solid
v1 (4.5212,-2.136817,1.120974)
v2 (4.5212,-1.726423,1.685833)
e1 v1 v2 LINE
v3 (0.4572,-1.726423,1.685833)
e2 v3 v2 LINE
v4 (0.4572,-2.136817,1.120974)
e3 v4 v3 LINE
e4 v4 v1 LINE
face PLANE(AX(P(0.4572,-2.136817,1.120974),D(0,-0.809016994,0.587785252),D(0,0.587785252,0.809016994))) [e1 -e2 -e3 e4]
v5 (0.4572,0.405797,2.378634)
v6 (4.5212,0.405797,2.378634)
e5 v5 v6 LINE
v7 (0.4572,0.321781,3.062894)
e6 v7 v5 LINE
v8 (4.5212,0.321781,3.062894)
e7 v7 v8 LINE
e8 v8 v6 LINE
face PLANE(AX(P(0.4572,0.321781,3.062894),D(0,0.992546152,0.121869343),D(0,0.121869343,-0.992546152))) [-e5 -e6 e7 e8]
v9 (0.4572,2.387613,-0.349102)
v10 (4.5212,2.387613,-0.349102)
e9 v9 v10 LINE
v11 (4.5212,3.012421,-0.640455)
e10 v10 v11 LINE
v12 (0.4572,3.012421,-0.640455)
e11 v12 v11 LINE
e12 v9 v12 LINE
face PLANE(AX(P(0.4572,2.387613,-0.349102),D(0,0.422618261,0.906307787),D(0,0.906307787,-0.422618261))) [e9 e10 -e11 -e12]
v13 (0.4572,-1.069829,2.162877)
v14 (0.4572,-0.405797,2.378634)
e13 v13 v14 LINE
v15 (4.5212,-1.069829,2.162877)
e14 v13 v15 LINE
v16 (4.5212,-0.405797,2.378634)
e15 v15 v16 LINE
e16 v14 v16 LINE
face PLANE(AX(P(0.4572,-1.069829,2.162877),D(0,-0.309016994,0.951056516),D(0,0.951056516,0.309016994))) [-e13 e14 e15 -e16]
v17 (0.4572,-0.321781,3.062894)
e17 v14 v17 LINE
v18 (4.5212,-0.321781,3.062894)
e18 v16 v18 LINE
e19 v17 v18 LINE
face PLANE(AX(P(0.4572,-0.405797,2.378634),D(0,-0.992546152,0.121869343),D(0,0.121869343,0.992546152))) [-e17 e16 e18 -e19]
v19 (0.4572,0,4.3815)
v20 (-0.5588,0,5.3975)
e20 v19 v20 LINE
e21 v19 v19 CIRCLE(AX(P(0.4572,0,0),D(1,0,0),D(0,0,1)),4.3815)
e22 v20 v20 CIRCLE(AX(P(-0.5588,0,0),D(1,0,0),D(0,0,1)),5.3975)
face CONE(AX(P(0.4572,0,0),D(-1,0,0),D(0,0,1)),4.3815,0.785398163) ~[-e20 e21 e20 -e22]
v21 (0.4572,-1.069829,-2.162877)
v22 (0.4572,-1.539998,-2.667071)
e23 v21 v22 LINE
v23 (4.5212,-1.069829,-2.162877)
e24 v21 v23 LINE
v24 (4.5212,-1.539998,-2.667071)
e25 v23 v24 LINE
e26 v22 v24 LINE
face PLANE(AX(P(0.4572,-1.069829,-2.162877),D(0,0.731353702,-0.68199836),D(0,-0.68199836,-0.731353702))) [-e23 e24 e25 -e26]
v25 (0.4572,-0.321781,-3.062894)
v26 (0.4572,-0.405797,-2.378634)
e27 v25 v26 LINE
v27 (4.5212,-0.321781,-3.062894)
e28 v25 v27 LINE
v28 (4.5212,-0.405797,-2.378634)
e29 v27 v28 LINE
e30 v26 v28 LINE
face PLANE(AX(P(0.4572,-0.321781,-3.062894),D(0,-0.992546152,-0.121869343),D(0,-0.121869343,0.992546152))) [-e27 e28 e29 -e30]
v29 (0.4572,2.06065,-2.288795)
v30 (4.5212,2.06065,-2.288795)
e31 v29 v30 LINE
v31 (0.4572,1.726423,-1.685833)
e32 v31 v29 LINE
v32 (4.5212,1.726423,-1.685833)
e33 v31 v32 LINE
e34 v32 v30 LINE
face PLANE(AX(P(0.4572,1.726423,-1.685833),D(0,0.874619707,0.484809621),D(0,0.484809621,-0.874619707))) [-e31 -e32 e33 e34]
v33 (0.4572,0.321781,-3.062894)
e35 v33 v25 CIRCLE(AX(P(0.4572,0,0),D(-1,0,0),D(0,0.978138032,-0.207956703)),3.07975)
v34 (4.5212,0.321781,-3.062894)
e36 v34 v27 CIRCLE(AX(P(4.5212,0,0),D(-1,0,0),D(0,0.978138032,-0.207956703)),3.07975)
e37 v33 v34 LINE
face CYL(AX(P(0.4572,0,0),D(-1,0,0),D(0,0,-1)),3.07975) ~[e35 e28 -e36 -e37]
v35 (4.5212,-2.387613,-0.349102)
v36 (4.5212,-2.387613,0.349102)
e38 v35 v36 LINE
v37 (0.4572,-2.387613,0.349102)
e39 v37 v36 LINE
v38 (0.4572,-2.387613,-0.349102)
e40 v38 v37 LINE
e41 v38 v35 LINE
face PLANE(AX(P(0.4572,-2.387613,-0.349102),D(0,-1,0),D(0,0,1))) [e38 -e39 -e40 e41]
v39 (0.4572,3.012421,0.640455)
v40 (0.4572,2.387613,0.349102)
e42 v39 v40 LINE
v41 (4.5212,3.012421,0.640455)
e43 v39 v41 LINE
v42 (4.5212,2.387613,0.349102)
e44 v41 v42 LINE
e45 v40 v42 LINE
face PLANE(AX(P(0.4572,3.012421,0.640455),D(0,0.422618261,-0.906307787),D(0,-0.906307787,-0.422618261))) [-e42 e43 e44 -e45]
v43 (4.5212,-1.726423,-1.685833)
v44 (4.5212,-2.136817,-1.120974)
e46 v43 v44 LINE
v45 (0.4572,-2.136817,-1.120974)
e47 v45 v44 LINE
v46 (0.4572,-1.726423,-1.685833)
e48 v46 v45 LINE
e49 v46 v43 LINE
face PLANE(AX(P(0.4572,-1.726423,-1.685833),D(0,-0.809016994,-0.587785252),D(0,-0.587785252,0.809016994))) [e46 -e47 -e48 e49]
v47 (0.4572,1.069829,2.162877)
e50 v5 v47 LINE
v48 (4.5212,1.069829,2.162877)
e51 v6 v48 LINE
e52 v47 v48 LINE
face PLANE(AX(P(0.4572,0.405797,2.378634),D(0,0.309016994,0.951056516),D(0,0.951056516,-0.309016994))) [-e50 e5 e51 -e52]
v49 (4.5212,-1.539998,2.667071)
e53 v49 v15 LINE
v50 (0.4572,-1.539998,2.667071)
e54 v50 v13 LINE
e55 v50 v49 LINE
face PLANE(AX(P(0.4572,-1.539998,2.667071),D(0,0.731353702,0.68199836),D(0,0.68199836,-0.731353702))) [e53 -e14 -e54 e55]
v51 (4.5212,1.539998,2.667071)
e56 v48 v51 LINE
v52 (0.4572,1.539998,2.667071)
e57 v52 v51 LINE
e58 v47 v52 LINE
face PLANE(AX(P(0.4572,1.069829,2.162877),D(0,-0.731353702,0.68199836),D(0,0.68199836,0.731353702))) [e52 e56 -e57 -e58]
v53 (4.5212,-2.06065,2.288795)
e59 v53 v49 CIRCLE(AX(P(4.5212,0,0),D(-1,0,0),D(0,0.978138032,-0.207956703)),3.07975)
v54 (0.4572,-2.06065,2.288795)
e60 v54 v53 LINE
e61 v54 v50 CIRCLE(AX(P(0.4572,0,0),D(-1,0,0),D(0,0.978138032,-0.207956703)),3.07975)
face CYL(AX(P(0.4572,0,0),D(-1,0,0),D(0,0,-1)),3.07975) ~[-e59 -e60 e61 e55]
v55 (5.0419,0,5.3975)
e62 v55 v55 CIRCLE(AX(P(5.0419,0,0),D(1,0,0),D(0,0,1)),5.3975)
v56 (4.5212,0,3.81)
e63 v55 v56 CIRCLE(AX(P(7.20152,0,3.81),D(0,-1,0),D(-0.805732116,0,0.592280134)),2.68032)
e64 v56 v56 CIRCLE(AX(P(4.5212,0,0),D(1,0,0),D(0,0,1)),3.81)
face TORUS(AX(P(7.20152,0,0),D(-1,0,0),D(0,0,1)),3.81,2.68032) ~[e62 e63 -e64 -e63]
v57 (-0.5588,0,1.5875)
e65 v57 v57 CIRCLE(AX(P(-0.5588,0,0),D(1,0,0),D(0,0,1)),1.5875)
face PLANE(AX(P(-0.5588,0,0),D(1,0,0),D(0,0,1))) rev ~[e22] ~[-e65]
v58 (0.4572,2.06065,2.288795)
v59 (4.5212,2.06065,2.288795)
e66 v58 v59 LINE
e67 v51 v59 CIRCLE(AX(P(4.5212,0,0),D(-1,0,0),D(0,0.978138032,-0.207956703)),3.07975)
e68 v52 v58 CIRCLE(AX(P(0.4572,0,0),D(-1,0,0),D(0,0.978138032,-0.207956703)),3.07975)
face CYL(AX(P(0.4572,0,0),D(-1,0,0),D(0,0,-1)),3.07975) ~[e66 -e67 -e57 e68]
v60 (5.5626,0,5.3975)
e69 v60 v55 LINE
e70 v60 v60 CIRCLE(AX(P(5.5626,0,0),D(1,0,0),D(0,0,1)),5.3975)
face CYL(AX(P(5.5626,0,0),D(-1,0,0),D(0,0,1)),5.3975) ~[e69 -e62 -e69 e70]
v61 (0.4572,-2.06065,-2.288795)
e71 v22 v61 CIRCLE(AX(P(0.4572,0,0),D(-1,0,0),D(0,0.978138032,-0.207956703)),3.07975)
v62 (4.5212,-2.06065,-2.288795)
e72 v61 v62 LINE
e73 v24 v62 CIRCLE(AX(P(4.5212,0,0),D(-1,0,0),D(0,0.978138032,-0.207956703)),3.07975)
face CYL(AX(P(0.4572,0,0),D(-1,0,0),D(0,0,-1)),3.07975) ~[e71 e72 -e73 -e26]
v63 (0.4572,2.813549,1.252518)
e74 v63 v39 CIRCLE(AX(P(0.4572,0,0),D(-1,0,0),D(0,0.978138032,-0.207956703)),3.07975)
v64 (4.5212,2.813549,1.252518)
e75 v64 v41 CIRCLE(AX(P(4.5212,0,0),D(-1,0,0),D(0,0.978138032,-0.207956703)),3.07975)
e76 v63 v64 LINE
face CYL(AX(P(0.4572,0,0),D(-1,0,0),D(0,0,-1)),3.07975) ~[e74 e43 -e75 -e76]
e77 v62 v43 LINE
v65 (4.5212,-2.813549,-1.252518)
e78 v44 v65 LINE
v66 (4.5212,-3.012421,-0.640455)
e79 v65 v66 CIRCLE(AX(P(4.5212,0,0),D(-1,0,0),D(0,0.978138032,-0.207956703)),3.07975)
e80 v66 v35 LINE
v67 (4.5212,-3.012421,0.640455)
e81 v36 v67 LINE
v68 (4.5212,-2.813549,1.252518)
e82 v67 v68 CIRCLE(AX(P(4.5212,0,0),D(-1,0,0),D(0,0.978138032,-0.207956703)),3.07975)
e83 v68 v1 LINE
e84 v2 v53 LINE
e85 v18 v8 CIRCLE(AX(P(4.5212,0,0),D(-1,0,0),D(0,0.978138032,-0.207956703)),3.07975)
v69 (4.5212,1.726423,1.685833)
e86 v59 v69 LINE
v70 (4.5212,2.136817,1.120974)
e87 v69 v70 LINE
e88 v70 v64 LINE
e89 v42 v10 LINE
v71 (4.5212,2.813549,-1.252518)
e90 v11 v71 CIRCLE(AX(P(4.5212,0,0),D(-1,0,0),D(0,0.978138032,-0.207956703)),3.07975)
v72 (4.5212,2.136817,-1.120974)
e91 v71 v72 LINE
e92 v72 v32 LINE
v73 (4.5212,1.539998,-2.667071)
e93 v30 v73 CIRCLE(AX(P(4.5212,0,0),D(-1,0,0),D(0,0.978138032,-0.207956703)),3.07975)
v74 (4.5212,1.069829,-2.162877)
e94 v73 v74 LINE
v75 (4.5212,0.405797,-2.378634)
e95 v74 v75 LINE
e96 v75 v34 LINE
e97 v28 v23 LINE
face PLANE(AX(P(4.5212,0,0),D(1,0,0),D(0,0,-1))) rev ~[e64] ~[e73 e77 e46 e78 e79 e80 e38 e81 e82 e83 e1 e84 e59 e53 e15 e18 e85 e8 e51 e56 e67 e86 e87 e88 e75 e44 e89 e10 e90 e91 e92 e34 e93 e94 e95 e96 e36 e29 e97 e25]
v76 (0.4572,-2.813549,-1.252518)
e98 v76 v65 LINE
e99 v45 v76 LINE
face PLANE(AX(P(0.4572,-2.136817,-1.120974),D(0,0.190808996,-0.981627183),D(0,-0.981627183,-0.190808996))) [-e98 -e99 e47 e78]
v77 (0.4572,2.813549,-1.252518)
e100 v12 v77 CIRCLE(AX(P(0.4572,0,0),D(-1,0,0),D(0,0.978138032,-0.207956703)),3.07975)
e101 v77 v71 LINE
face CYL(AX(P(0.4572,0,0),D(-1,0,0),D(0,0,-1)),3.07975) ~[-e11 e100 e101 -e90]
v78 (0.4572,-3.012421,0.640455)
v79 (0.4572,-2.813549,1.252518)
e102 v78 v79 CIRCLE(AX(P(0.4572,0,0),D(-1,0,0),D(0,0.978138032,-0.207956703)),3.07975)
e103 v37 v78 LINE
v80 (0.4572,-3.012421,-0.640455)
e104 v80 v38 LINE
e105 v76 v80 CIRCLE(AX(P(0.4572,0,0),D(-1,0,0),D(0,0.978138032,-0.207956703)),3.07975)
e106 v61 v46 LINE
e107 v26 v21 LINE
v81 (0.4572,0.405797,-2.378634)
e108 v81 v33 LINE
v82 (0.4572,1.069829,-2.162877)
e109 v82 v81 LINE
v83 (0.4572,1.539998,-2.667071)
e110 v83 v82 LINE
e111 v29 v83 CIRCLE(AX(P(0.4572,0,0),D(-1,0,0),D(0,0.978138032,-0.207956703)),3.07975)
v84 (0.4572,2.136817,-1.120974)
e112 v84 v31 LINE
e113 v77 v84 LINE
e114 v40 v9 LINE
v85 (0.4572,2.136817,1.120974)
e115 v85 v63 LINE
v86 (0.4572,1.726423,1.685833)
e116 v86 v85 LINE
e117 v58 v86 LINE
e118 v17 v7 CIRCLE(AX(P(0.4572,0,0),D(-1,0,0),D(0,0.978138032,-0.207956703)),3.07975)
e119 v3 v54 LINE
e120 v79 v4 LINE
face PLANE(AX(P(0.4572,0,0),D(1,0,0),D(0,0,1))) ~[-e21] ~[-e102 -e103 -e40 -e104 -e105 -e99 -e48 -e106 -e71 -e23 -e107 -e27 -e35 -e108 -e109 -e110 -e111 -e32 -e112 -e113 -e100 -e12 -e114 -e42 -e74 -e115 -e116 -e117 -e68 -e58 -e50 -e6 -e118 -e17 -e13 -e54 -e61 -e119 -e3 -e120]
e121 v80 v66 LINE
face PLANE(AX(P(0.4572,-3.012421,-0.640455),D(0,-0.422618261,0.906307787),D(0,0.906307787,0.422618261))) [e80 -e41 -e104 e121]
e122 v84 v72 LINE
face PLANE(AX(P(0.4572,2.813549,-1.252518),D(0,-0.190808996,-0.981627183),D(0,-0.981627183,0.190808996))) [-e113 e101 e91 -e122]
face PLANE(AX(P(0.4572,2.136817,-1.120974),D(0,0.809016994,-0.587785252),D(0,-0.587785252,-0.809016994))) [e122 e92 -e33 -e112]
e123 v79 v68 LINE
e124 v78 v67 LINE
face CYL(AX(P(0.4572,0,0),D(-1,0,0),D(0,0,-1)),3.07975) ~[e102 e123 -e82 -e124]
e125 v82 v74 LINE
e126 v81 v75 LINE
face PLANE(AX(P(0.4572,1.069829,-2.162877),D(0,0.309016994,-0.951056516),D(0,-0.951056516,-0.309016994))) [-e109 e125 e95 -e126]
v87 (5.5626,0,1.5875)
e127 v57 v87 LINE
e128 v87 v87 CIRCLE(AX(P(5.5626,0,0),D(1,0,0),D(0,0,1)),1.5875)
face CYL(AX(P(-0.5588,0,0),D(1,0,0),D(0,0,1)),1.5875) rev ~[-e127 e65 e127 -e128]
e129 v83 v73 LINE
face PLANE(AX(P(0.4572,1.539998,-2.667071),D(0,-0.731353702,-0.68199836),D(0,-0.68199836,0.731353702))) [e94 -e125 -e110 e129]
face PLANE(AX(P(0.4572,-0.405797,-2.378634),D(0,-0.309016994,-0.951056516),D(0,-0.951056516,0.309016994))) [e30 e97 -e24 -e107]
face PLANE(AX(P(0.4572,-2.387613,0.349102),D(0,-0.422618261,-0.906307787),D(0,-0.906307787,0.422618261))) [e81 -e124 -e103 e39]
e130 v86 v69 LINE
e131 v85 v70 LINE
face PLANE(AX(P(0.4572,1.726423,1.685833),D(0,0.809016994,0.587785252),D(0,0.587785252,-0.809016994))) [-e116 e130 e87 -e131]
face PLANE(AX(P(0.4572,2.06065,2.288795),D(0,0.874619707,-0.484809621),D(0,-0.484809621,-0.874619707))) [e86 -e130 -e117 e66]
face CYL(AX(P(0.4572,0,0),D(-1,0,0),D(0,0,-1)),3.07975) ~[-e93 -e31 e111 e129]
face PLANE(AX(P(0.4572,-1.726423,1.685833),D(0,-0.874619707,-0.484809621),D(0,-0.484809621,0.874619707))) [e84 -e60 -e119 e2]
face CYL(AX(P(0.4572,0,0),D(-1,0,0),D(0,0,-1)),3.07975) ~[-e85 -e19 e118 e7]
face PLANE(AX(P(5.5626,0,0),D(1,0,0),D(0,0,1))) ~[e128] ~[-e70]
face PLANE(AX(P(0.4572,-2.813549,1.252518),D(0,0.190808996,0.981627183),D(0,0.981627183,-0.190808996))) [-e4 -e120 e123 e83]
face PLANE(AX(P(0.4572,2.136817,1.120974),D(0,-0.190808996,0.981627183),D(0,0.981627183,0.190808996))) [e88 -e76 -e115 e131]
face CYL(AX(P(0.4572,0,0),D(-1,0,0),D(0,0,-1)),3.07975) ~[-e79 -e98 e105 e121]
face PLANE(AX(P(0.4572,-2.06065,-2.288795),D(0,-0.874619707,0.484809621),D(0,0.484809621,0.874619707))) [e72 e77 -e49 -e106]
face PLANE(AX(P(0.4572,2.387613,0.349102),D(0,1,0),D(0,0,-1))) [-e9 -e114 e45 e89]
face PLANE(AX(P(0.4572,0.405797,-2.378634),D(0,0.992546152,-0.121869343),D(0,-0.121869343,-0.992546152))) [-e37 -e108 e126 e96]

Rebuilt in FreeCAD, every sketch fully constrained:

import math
import FreeCAD as App
import Part
import Sketcher
Q = App.Units.Quantity

doc = App.newDocument("Part")
body = doc.addObject("PartDesign::Body", "Body")

# Sketch on XY plane
sketch1 = doc.addObject("Sketcher::SketchObject", "Sketch")
body.addObject(sketch1)
sketch1.AttachmentSupport = (doc.XY_Plane, [""])
sketch1.MapMode = "FlatFace"
sketch1.addGeometry([
    Part.LineSegment(App.Vector(-0.5588, 5.3975, 0), App.Vector(-0.5588, 1.5875, 0)),  # 0
    Part.LineSegment(App.Vector(-0.5588, 1.5875, 0), App.Vector(5.5626, 1.5875, 0)),  # 1
    Part.LineSegment(App.Vector(5.5626, 1.5875, 0), App.Vector(5.5626, 5.3975, 0)),  # 2
    Part.LineSegment(App.Vector(5.5626, 5.3975, 0), App.Vector(5.0419, 5.3975, 0)),  # 3
    Part.ArcOfCircle(Part.Circle(App.Vector(7.20152, 3.81, 0), App.Vector(0, 0, 1), 2.68032), math.radians(143.681019), math.radians(180)),  # 4
    Part.LineSegment(App.Vector(4.5212, 3.81, 0), App.Vector(4.5212, 3.2385, 0)),  # 5
    Part.LineSegment(App.Vector(4.5212, 3.2385, 0), App.Vector(0.4572, 3.2385, 0)),  # 6
    Part.LineSegment(App.Vector(0.4572, 3.2385, 0), App.Vector(0.4572, 4.3815, 0)),  # 7
    Part.LineSegment(App.Vector(0.4572, 4.3815, 0), App.Vector(-0.5588, 5.3975, 0)),  # 8
], False)
sketch1.addConstraint([
    Sketcher.Constraint("Coincident", 0, 2, 1, 1),
    Sketcher.Constraint("Coincident", 1, 2, 2, 1),
    Sketcher.Constraint("Coincident", 2, 2, 3, 1),
    Sketcher.Constraint("Coincident", 3, 2, 4, 1),
    Sketcher.Constraint("Tangent", 4, 2, 5, 1),
    Sketcher.Constraint("Coincident", 5, 2, 6, 1),
    Sketcher.Constraint("Coincident", 6, 2, 7, 1),
    Sketcher.Constraint("Coincident", 7, 2, 8, 1),
    Sketcher.Constraint("Coincident", 8, 2, 0, 1),
    Sketcher.Constraint("Vertical", 0),
    Sketcher.Constraint("Horizontal", 1),
    Sketcher.Constraint("Vertical", 2),
    Sketcher.Constraint("Horizontal", 3),
    Sketcher.Constraint("Vertical", 5),
    Sketcher.Constraint("Horizontal", 6),
    Sketcher.Constraint("Vertical", 7),
    Sketcher.Constraint("Horizontal", 3, 2, 8, 2),
    Sketcher.Constraint("Angle", 8, Q("135 deg")),
    Sketcher.Constraint("DistanceX", 6, 2, 6, 1, Q("0.16 in")),
    Sketcher.Constraint("DistanceY", 0, 2, 0, 1, Q("0.15 in")),
    Sketcher.Constraint("DistanceX", 0, 2, 4, 2, Q("0.2 in")),
    Sketcher.Constraint("DistanceX", 1, 1, 1, 2, Q("0.241 in")),
    Sketcher.Constraint("DistanceY", 7, 1, 7, 2, Q("0.045 in")),
    Sketcher.Constraint("DistanceY", -1, 1, 4, 3, Q("0.15 in")),
    Sketcher.Constraint("DistanceX", 3, 2, 3, 1, Q("0.0205 in")),
    Sketcher.Constraint("DistanceY", 5, 2, 5, 1, Q("0.0225 in")),
    Sketcher.Constraint("DistanceX", 0, 2, -1, 1, Q("0.022 in")),
])
revolution = doc.addObject("PartDesign::Revolution", "Revolution")
body.addObject(revolution)
revolution.Profile = sketch1
revolution.ReferenceAxis = (sketch1, ["H_Axis"])
revolution.Angle = 360

# Sketch on YZ plane
sketch2 = doc.addObject("Sketcher::SketchObject", "Sketch001")
body.addObject(sketch2)
sketch2.AttachmentSupport = (doc.YZ_Plane, [""])
sketch2.MapMode = "FlatFace"
sketch2.AttachmentOffset = App.Placement(App.Vector(0, 0, 0.018 * 25.4), App.Rotation())
sketch2.addGeometry([
    Part.Circle(App.Vector(0, 0, 0), App.Vector(0, 0, 1), 3.2385),
    Part.Circle(App.Vector(0, 0, 0), App.Vector(0, 0, 1), 3.07975),
], False)
sketch2.addConstraint([
    Sketcher.Constraint("Coincident", 0, 3, -1, 1),
    Sketcher.Constraint("Coincident", 1, 3, -1, 1),
    Sketcher.Constraint("Diameter", 0, Q("0.255 in")),
    Sketcher.Constraint("Diameter", 1, Q("0.2425 in")),
])
pocket1 = doc.addObject("PartDesign::Pocket", "Pocket")
body.addObject(pocket1)
pocket1.Profile = sketch2
pocket1.Length = Q("0.16 in")
pocket1.Reversed = True

# Sketch on YZ plane
sketch3 = doc.addObject("Sketcher::SketchObject", "Sketch002")
body.addObject(sketch3)
sketch3.AttachmentSupport = (doc.YZ_Plane, [""])
sketch3.MapMode = "FlatFace"
sketch3.AttachmentOffset = App.Placement(App.Vector(0, 0, 0.018 * 25.4), App.Rotation())
sketch3.addGeometry([
    Part.LineSegment(App.Vector(3.012421, 0.640455, 0), App.Vector(2.387613, 0.349102, 0)),
    Part.LineSegment(App.Vector(2.387613, 0.349102, 0), App.Vector(2.387613, -0.349102, 0)),
    Part.LineSegment(App.Vector(2.387613, -0.349102, 0), App.Vector(3.012421, -0.640455, 0)),
    Part.ArcOfCircle(Part.Circle(App.Vector(0, 0, 0), App.Vector(0, 0, 1), 3.07975), math.radians(-12.002637), math.radians(12.002637)),
], False)
sketch3.addConstraint([
    Sketcher.Constraint("Coincident", 0, 2, 1, 1),
    Sketcher.Constraint("Coincident", 1, 2, 2, 1),
    Sketcher.Constraint("Coincident", 2, 2, 3, 1),
    Sketcher.Constraint("Coincident", 3, 2, 0, 1),
    Sketcher.Constraint("Vertical", 1),
    Sketcher.Constraint("Coincident", 3, 3, -1, 1),
    Sketcher.Constraint("Vertical", 2, 2, 3, 2),
    Sketcher.Constraint("Equal", 0, 2),
    Sketcher.Constraint("Angle", 0, Q("-155 deg")),
    Sketcher.Constraint("Radius", 3, Q("3.07975 mm")),
    Sketcher.Constraint("Distance", 0, Q("0.689399 mm")),
    Sketcher.Constraint("DistanceY", 1, 2, 1, 1, Q("0.698204 mm")),
])
pocket2 = doc.addObject("PartDesign::Pocket", "Pocket001")
body.addObject(pocket2)
pocket2.Profile = sketch3
pocket2.Length = Q("0.16 in")
pocket2.Reversed = True
doc.recompute()

polarpattern = doc.addObject("PartDesign::PolarPattern", "PolarPattern")
body.addObject(polarpattern)
polarpattern.Originals = [pocket2]
polarpattern.Axis = (doc.X_Axis, [""])
polarpattern.Angle = 360
polarpattern.Occurrences = 10
body.Tip = polarpattern

doc.recompute()
